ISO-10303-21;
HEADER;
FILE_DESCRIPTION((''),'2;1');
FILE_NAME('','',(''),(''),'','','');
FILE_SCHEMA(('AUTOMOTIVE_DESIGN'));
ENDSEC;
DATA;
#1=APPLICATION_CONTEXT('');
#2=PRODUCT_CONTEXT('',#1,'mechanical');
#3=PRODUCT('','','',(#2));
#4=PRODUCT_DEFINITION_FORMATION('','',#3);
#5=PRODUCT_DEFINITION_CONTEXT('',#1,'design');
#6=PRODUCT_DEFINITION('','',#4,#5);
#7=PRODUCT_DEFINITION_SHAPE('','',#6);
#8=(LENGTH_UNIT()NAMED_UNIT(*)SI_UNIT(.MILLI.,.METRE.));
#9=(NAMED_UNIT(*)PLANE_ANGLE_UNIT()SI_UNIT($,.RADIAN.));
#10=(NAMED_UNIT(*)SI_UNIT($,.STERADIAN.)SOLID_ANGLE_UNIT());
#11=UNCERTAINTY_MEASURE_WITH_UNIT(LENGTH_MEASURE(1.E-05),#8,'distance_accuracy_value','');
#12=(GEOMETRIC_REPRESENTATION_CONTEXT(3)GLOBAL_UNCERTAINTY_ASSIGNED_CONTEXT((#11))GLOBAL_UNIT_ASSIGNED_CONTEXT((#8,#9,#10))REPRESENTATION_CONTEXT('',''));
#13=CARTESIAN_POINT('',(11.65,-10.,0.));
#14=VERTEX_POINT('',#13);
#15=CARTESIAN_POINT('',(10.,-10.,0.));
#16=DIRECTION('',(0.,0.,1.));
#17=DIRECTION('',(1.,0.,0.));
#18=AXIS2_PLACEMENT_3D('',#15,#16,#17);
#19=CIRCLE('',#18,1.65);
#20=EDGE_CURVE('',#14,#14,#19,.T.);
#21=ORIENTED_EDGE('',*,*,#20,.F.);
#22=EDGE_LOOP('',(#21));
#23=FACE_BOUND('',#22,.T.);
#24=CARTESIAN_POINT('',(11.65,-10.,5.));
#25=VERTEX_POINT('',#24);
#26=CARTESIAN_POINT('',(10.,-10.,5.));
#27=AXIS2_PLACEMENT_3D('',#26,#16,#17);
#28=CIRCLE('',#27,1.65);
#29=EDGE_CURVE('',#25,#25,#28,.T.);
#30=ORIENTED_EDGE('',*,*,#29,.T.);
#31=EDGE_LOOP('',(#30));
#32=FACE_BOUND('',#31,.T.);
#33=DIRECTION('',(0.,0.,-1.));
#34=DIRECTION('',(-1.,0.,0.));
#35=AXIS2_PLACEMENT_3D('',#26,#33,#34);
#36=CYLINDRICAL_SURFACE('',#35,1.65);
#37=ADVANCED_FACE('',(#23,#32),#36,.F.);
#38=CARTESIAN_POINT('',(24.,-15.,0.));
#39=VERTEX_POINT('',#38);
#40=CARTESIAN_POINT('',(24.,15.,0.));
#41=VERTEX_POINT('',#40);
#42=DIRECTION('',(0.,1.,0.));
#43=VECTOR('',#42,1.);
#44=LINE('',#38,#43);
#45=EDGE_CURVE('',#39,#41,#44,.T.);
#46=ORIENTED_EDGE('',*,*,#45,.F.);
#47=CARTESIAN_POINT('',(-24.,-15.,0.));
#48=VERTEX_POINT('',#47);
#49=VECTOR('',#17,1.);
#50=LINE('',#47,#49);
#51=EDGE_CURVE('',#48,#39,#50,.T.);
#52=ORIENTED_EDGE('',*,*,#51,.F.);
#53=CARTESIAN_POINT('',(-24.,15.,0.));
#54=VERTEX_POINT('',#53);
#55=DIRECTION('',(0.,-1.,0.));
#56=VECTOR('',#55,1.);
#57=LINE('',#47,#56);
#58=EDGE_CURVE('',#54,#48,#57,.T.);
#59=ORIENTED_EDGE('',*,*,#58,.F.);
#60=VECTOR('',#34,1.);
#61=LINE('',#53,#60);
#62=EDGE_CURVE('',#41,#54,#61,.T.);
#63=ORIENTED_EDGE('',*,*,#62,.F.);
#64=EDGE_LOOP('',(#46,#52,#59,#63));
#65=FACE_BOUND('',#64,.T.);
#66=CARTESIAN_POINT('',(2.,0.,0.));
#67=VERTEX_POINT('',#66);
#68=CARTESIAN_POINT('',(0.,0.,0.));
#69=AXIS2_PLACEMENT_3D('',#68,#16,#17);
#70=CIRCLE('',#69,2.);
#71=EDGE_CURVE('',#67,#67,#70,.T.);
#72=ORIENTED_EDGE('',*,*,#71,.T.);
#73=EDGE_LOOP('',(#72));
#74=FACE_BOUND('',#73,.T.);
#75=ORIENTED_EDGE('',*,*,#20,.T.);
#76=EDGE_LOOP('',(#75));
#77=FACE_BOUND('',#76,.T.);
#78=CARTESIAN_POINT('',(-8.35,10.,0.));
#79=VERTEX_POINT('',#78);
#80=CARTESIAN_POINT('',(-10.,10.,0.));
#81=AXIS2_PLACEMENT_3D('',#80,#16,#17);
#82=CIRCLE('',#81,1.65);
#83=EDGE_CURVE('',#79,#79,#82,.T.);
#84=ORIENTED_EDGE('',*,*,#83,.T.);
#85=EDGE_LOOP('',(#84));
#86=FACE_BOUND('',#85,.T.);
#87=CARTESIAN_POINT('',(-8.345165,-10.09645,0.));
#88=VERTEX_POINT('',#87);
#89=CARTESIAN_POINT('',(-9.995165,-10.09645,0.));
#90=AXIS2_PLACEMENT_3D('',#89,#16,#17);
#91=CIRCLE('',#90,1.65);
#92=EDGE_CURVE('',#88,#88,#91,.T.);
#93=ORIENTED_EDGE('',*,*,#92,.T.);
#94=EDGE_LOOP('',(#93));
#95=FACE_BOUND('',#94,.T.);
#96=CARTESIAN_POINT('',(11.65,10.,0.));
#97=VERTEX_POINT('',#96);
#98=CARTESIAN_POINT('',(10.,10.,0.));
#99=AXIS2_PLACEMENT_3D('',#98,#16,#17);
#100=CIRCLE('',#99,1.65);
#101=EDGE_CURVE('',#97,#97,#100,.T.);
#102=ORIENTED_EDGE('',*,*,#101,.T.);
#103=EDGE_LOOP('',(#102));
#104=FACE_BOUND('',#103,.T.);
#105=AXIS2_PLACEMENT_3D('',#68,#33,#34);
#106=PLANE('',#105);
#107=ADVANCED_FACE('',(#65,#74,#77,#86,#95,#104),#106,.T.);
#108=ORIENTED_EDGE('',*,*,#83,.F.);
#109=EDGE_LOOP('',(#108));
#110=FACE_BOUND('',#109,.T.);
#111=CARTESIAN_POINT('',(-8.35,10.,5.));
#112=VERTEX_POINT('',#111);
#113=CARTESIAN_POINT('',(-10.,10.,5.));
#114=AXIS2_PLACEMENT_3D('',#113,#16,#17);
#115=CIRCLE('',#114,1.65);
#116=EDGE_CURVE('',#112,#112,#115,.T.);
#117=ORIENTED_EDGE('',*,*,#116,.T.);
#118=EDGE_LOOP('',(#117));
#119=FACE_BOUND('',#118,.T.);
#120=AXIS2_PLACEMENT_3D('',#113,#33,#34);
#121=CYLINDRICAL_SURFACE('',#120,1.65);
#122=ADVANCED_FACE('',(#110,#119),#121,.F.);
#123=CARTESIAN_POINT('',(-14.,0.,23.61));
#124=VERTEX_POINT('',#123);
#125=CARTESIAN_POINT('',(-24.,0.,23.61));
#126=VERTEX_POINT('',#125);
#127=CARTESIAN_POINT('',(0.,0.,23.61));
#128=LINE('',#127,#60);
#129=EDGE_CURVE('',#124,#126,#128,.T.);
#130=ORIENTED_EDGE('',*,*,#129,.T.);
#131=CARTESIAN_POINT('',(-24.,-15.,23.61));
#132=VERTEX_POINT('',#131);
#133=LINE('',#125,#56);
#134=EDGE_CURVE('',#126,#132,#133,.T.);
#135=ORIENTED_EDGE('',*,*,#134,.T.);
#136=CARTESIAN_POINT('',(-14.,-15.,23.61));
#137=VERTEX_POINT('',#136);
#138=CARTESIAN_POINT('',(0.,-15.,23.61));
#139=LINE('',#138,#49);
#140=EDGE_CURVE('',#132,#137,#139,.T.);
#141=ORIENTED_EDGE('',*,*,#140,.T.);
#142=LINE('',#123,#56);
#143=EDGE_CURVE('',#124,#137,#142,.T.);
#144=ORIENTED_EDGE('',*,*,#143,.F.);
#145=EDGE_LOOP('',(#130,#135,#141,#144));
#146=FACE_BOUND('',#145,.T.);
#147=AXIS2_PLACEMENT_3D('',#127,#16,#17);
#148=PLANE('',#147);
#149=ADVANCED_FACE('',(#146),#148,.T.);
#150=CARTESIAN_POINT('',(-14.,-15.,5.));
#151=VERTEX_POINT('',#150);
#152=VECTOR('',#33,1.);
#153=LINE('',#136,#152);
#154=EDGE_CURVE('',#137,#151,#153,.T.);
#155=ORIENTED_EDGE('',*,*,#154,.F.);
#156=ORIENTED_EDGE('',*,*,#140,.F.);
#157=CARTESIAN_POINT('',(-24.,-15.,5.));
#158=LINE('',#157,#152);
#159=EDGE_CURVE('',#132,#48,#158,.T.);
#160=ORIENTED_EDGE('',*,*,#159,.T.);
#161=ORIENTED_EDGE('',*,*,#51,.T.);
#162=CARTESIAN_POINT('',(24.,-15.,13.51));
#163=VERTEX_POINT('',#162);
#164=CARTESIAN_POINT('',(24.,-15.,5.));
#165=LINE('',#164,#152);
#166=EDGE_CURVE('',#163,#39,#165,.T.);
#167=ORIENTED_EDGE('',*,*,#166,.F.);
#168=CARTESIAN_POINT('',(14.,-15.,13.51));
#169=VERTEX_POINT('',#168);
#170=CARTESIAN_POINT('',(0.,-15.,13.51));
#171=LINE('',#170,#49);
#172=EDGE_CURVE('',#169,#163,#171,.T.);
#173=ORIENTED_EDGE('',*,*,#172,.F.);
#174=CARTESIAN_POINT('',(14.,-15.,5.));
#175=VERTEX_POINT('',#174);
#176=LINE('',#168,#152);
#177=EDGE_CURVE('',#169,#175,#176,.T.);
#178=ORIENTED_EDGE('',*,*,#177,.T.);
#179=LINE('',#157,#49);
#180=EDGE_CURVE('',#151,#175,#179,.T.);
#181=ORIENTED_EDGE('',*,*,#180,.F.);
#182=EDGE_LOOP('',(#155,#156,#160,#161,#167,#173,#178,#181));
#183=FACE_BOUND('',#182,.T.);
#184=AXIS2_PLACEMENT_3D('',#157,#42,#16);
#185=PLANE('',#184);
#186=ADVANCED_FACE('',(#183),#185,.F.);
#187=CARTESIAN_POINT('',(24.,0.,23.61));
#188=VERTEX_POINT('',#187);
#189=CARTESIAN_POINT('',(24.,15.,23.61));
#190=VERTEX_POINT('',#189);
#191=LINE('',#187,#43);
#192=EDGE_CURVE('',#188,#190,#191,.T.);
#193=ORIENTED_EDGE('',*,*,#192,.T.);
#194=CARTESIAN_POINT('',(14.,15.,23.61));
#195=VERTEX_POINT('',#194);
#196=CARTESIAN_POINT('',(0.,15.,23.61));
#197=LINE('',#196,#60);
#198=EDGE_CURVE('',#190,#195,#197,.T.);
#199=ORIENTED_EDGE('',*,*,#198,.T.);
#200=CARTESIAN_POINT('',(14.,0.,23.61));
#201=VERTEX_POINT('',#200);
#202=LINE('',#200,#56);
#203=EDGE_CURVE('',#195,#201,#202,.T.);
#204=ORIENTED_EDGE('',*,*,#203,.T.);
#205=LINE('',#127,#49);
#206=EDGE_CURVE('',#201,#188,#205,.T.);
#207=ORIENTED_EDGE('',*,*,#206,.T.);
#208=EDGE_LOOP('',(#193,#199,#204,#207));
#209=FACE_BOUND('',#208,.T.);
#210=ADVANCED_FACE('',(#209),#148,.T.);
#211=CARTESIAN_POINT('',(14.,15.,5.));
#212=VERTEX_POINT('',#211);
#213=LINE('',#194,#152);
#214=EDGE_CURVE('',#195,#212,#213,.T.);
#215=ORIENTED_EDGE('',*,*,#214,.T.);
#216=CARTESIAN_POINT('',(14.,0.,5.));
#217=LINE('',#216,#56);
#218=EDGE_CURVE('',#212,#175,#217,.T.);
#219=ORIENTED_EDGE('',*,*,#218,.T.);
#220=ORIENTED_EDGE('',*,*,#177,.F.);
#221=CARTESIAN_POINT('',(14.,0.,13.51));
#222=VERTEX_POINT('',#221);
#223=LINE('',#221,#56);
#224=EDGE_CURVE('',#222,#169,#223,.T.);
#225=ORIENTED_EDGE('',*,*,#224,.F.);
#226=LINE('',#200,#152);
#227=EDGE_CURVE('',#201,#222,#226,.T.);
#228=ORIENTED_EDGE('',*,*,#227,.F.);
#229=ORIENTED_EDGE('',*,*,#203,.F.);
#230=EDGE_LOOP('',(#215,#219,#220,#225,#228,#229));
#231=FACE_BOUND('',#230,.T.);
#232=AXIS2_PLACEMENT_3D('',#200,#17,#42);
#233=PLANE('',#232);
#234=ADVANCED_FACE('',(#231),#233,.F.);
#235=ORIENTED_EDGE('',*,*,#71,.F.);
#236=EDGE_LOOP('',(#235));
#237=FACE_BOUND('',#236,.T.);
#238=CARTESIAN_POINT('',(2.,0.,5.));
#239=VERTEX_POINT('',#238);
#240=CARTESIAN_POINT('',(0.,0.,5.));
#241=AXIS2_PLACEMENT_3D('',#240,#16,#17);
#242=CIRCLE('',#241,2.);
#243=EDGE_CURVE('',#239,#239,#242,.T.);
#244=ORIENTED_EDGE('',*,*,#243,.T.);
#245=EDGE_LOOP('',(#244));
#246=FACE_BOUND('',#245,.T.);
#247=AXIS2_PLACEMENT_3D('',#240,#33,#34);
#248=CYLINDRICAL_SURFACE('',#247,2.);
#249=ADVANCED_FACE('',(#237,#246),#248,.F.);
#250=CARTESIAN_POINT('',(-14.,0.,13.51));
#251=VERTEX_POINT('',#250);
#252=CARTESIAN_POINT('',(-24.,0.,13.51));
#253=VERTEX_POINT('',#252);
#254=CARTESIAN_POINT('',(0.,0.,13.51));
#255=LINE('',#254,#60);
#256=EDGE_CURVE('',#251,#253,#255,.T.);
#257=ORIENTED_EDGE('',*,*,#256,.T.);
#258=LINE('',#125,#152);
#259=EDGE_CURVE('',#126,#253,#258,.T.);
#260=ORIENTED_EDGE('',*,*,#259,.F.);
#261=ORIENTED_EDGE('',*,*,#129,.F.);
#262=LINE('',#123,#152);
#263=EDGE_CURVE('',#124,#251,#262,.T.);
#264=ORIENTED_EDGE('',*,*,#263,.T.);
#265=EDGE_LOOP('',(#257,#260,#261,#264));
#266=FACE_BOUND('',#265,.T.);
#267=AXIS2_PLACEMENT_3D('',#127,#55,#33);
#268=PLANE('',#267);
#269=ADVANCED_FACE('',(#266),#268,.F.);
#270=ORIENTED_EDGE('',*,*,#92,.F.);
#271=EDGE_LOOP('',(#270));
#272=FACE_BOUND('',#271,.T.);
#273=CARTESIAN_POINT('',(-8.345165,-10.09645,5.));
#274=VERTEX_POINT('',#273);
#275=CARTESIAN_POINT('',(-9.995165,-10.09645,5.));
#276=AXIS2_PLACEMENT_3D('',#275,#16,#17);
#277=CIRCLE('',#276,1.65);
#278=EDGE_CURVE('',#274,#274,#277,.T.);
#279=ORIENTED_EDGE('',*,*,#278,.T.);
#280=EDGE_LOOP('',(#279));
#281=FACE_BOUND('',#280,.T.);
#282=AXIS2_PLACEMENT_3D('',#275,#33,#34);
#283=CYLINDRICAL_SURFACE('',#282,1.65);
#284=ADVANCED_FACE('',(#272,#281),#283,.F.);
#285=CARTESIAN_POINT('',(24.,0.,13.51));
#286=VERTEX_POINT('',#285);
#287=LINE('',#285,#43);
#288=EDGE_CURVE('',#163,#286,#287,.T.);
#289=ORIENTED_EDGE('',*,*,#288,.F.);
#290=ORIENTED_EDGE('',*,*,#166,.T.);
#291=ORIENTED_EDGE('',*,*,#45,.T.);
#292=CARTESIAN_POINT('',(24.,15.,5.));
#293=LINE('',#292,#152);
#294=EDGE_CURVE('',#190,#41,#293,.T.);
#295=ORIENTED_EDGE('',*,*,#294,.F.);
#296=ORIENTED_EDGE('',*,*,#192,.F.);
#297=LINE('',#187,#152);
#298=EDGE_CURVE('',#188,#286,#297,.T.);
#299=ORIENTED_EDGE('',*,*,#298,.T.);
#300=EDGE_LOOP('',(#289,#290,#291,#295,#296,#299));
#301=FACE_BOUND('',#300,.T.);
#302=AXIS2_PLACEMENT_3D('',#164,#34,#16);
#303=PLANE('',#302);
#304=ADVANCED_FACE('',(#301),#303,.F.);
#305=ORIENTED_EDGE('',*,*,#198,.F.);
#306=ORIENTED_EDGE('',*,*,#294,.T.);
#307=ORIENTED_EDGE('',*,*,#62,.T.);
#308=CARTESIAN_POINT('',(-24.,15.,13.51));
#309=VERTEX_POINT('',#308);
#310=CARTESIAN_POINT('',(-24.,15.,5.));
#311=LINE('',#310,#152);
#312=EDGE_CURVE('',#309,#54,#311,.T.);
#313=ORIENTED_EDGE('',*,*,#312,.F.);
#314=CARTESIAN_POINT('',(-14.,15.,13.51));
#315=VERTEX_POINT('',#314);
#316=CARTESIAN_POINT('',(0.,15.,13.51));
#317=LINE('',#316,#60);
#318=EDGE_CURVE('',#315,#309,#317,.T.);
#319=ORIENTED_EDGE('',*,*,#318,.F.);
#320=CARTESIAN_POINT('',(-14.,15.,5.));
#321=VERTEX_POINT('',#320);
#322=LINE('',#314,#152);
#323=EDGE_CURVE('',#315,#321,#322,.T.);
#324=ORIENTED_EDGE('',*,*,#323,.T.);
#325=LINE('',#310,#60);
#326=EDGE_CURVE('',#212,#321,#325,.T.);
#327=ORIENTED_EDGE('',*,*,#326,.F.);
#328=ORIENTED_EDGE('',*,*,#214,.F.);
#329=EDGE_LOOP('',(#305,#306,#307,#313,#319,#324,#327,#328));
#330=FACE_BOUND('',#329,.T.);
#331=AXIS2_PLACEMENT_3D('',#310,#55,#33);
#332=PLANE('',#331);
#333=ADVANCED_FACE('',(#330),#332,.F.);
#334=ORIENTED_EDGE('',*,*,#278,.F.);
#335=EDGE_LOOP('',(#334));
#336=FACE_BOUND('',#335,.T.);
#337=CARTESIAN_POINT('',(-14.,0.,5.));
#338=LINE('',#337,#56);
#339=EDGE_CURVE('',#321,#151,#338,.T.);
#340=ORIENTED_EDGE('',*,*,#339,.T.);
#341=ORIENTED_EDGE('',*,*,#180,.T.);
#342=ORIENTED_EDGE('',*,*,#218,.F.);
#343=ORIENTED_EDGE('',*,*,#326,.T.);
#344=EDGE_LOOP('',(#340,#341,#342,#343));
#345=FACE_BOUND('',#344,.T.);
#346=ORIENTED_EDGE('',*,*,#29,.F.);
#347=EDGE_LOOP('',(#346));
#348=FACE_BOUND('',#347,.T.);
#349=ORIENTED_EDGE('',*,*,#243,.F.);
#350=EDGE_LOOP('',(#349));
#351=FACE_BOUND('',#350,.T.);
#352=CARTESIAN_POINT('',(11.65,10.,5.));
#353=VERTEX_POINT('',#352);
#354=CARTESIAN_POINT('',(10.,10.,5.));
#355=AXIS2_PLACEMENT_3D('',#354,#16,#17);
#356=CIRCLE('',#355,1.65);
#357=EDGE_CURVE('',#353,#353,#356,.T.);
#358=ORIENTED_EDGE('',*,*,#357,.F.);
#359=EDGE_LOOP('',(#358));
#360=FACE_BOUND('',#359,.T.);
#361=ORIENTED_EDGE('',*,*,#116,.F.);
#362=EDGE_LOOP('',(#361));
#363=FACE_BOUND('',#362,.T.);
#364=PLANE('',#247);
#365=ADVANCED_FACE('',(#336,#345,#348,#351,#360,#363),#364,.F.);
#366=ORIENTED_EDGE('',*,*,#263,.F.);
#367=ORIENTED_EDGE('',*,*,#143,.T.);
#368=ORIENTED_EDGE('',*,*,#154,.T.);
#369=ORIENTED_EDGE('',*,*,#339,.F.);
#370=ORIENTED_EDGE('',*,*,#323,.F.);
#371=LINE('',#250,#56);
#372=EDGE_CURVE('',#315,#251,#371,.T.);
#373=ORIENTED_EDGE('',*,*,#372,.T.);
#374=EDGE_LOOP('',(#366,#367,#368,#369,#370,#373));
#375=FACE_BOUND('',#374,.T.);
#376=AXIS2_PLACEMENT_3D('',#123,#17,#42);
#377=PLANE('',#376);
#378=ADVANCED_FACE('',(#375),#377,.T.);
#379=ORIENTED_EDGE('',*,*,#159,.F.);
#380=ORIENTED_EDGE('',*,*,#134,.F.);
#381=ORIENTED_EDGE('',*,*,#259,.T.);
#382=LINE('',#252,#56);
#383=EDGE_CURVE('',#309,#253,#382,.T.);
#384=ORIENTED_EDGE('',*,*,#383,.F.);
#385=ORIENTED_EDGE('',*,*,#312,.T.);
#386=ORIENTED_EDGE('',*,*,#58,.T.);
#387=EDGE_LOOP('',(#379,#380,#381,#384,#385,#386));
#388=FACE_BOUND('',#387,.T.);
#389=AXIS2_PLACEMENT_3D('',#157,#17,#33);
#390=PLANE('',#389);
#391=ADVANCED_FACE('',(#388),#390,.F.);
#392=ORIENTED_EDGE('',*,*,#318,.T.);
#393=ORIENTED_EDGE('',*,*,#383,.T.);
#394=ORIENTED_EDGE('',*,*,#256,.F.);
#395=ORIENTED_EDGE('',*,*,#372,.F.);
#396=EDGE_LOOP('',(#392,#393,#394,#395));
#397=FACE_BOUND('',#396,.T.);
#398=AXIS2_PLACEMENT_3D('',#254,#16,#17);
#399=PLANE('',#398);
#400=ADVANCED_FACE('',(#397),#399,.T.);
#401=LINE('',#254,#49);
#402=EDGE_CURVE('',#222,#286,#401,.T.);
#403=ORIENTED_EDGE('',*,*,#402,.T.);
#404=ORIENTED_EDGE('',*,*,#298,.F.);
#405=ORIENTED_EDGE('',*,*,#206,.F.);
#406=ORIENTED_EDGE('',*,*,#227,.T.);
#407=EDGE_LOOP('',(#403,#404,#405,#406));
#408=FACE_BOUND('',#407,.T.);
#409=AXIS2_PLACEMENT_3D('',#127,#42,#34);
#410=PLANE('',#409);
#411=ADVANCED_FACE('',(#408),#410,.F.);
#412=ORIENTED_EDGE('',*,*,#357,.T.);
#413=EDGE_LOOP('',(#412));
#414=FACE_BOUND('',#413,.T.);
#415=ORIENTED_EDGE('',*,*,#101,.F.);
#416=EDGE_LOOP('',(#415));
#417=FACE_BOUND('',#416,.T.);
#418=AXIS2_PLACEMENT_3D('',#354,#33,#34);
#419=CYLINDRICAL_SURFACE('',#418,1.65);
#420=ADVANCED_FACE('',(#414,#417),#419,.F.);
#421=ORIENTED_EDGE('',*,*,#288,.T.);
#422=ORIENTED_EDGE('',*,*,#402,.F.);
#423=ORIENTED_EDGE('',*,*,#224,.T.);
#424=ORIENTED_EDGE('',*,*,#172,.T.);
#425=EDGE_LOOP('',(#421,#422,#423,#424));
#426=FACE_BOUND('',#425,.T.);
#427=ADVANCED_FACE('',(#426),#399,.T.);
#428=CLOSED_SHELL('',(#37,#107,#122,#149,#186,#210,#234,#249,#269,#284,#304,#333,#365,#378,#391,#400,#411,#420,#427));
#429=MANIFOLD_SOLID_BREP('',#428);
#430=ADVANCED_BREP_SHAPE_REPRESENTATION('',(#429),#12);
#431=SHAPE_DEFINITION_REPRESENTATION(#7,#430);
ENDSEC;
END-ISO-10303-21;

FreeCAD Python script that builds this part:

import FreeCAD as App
import Part
import Sketcher

V = App.Vector

doc = App.newDocument("Part")
body = doc.addObject("PartDesign::Body", "Body")

sketch1 = doc.addObject("Sketcher::SketchObject", "Sketch")
body.addObject(sketch1)
sketch1.AttachmentSupport = (doc.XY_Plane, [""])
sketch1.MapMode = "FlatFace"
sketch1.addGeometry([
    Part.LineSegment(V(-24, 15, 0), V(-24, -15, 0)),
    Part.LineSegment(V(-24, -15, 0), V(24, -15, 0)),
    Part.LineSegment(V(24, -15, 0), V(24, 15, 0)),
    Part.LineSegment(V(24, 15, 0), V(-24, 15, 0)),
    Part.Circle(V(-10, -10.1, 0), V(0, 0, 1), 1.6),
    Part.Circle(V(10, -10, 0), V(0, 0, 1), 1.6),
    Part.Circle(V(-10, 10, 0), V(0, 0, 1), 1.6),
    Part.Circle(V(0, 0, 0), V(0, 0, 1), 2),
    Part.Circle(V(10, 10, 0), V(0, 0, 1), 1.6),
], False)
sketch1.addConstraint([
    Sketcher.Constraint("Coincident", 0, 2, 1, 1),
    Sketcher.Constraint("Coincident", 1, 2, 2, 1),
    Sketcher.Constraint("Coincident", 2, 2, 3, 1),
    Sketcher.Constraint("Coincident", 3, 2, 0, 1),
    Sketcher.Constraint("Vertical", 0),
    Sketcher.Constraint("Horizontal", 1),
    Sketcher.Constraint("Vertical", 2),
    Sketcher.Constraint("Horizontal", 3),
    Sketcher.Constraint("Coincident", 7, 3, -1, 1),
    Sketcher.Constraint("Equal", 4, 5),
    Sketcher.Constraint("Equal", 5, 6),
    Sketcher.Constraint("Equal", 6, 8),
    Sketcher.Constraint("Symmetric", 5, 3, 6, 3, -1, 1),
    Sketcher.Constraint("Symmetric", 0, 2, 2, 2, -1, 1),
    Sketcher.Constraint("Symmetric", 6, 3, 8, 3, -2),
    Sketcher.Constraint("Diameter", 7, 4.0),
    Sketcher.Constraint("Diameter", 4, 3.3),
    Sketcher.Constraint("DistanceX", 1, 1, 1, 2, 48.0),
    Sketcher.Constraint("DistanceY", 0, 2, 0, 1, 30.0),
    Sketcher.Constraint("DistanceX", -1, 1, 5, 3, 10.0),
    Sketcher.Constraint("DistanceY", 5, 3, -1, 1, 10.0),
    Sketcher.Constraint("DistanceY", 4, 3, -1, 1, 10.09645),
    Sketcher.Constraint("DistanceX", 4, 3, -1, 1, 9.995165),
])
pad1 = doc.addObject("PartDesign::Pad", "Pad")
body.addObject(pad1)
pad1.Profile = sketch1
pad1.Length = 5

sketch2 = doc.addObject("Sketcher::SketchObject", "Sketch001")
body.addObject(sketch2)
sketch2.AttachmentSupport = (doc.XY_Plane, [""])
sketch2.MapMode = "FlatFace"
sketch2.AttachmentOffset = App.Placement(V(0, 0, 5), App.Rotation())
sketch2.addGeometry([
    Part.LineSegment(V(14, 15, 0), V(14, 0, 0)),
    Part.LineSegment(V(14, 0, 0), V(24, 0, 0)),
    Part.LineSegment(V(24, 0, 0), V(24, 15, 0)),
    Part.LineSegment(V(24, 15, 0), V(14, 15, 0)),
    Part.LineSegment(V(-24, 0, 0), V(-24, -15, 0)),
    Part.LineSegment(V(-24, -15, 0), V(-14, -15, 0)),
    Part.LineSegment(V(-14, -15, 0), V(-14, 0, 0)),
    Part.LineSegment(V(-14, 0, 0), V(-24, 0, 0)),
], False)
sketch2.addConstraint([
    Sketcher.Constraint("Coincident", 0, 2, 1, 1),
    Sketcher.Constraint("Coincident", 1, 2, 2, 1),
    Sketcher.Constraint("Coincident", 2, 2, 3, 1),
    Sketcher.Constraint("Coincident", 3, 2, 0, 1),
    Sketcher.Constraint("Coincident", 4, 2, 5, 1),
    Sketcher.Constraint("Coincident", 5, 2, 6, 1),
    Sketcher.Constraint("Coincident", 6, 2, 7, 1),
    Sketcher.Constraint("Coincident", 7, 2, 4, 1),
    Sketcher.Constraint("Vertical", 0),
    Sketcher.Constraint("Horizontal", 1),
    Sketcher.Constraint("Vertical", 2),
    Sketcher.Constraint("Horizontal", 3),
    Sketcher.Constraint("Vertical", 4),
    Sketcher.Constraint("Horizontal", 5),
    Sketcher.Constraint("Vertical", 6),
    Sketcher.Constraint("Horizontal", 7),
    Sketcher.Constraint("Symmetric", 2, 2, 4, 2, -1, 1),
    Sketcher.Constraint("Symmetric", 0, 2, 6, 2, -1, 1),
    Sketcher.Constraint("PointOnObject", 0, 2, -1),
    Sketcher.Constraint("DistanceX", 1, 1, 1, 2, 10.0),
    Sketcher.Constraint("DistanceY", 0, 2, 0, 1, 15.0),
    Sketcher.Constraint("DistanceX", -1, 1, 0, 2, 14.0),
])
pad2 = doc.addObject("PartDesign::Pad", "Pad001")
body.addObject(pad2)
pad2.Profile = sketch2
pad2.Length = 18.61

sketch3 = doc.addObject("Sketcher::SketchObject", "Sketch002")
body.addObject(sketch3)
sketch3.AttachmentSupport = (doc.XY_Plane, [""])
sketch3.MapMode = "FlatFace"
sketch3.AttachmentOffset = App.Placement(V(0, 0, 5), App.Rotation())
sketch3.addGeometry([
    Part.LineSegment(V(14, 0, 0), V(14, -15, 0)),
    Part.LineSegment(V(14, -15, 0), V(24, -15, 0)),
    Part.LineSegment(V(24, -15, 0), V(24, 0, 0)),
    Part.LineSegment(V(24, 0, 0), V(14, 0, 0)),
    Part.LineSegment(V(-24, 15, 0), V(-24, 0, 0)),
    Part.LineSegment(V(-24, 0, 0), V(-14, 0, 0)),
    Part.LineSegment(V(-14, 0, 0), V(-14, 15, 0)),
    Part.LineSegment(V(-14, 15, 0), V(-24, 15, 0)),
], False)
sketch3.addConstraint([
    Sketcher.Constraint("Coincident", 0, 2, 1, 1),
    Sketcher.Constraint("Coincident", 1, 2, 2, 1),
    Sketcher.Constraint("Coincident", 2, 2, 3, 1),
    Sketcher.Constraint("Coincident", 3, 2, 0, 1),
    Sketcher.Constraint("Coincident", 4, 2, 5, 1),
    Sketcher.Constraint("Coincident", 5, 2, 6, 1),
    Sketcher.Constraint("Coincident", 6, 2, 7, 1),
    Sketcher.Constraint("Coincident", 7, 2, 4, 1),
    Sketcher.Constraint("Vertical", 0),
    Sketcher.Constraint("Horizontal", 1),
    Sketcher.Constraint("Vertical", 2),
    Sketcher.Constraint("Horizontal", 3),
    Sketcher.Constraint("Vertical", 4),
    Sketcher.Constraint("Horizontal", 5),
    Sketcher.Constraint("Vertical", 6),
    Sketcher.Constraint("Horizontal", 7),
    Sketcher.Constraint("Symmetric", 2, 2, 4, 2, -1, 1),
    Sketcher.Constraint("Symmetric", 0, 2, 6, 2, -1, 1),
    Sketcher.Constraint("PointOnObject", 2, 2, -1),
    Sketcher.Constraint("DistanceX", 1, 1, 1, 2, 10.0),
    Sketcher.Constraint("DistanceY", 0, 2, 0, 1, 15.0),
    Sketcher.Constraint("DistanceX", -1, 1, 0, 2, 14.0),
])
pad3 = doc.addObject("PartDesign::Pad", "Pad002")
body.addObject(pad3)
pad3.Profile = sketch3
pad3.Length = 8.51

doc.recompute()
